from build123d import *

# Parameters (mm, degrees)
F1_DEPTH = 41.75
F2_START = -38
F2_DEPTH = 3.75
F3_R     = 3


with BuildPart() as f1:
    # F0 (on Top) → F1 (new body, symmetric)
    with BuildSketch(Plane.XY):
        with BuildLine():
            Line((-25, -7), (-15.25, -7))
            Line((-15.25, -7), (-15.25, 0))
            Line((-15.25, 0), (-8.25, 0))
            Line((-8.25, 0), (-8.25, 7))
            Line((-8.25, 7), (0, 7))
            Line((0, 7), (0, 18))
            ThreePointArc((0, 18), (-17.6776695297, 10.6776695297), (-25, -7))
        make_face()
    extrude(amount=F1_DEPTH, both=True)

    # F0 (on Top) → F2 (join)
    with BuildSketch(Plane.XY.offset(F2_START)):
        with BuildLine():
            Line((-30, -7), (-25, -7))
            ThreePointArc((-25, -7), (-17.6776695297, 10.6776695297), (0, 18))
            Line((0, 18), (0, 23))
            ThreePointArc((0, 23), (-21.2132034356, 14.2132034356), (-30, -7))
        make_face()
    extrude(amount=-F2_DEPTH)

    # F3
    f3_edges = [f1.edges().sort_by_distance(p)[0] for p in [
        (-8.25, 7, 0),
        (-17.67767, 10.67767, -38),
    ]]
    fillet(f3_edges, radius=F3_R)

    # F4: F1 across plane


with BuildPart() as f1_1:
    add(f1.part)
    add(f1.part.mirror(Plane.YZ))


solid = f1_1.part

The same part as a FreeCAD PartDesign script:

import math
import FreeCAD as App
import Part
import Sketcher
from FreeCAD import Vector


def edges_at(feature, points):
    """Names of the edges that pass closest to the given points."""
    edges = feature.Shape.Edges
    near = lambda p: min(range(len(edges)), key=lambda i: edges[i].distToShape(Part.Vertex(*p))[0])
    return sorted({f"Edge{near(p) + 1}" for p in points})

doc = App.newDocument("Part")
body = doc.addObject("PartDesign::Body", "Body")

# Sketch on XY plane
sketch1 = doc.addObject("Sketcher::SketchObject", "Sketch")
body.addObject(sketch1)
sketch1.AttachmentSupport = (doc.XY_Plane, [""])
sketch1.MapMode = "FlatFace"
sketch1.addGeometry([
    Part.LineSegment(Vector(-25, -7, 0), Vector(-15, -7, 0)),  # 0
    Part.LineSegment(Vector(-15, -7, 0), Vector(-15, 0, 0)),  # 1
    Part.LineSegment(Vector(-15, 0, 0), Vector(-8, 0, 0)),  # 2
    Part.LineSegment(Vector(-8, 0, 0), Vector(-8, 7, 0)),  # 3
    Part.LineSegment(Vector(-8, 7, 0), Vector(0, 7, 0)),  # 4
    Part.LineSegment(Vector(0, 7, 0), Vector(0, 18, 0)),  # 5
    Part.ArcOfCircle(Part.Circle(Vector(0, -7, 0), Vector(0, 0, 1), 25), math.radians(90), math.radians(180)),  # 6
], False)
sketch1.addConstraint([
    Sketcher.Constraint("Coincident", 0, 2, 1, 1),
    Sketcher.Constraint("Coincident", 1, 2, 2, 1),
    Sketcher.Constraint("Coincident", 2, 2, 3, 1),
    Sketcher.Constraint("Coincident", 3, 2, 4, 1),
    Sketcher.Constraint("Coincident", 4, 2, 5, 1),
    Sketcher.Constraint("Coincident", 5, 2, 6, 1),
    Sketcher.Constraint("Coincident", 6, 2, 0, 1),
    Sketcher.Constraint("Horizontal", 0),
    Sketcher.Constraint("Vertical", 1),
    Sketcher.Constraint("Horizontal", 2),
    Sketcher.Constraint("Vertical", 3),
    Sketcher.Constraint("Horizontal", 4),
    Sketcher.Constraint("Vertical", 5),
    Sketcher.Constraint("PointOnObject", 6, 3, -2),
    Sketcher.Constraint("PointOnObject", 1, 2, -1),
    Sketcher.Constraint("PointOnObject", 4, 2, -2),
    Sketcher.Constraint("Horizontal", 6, 3, 0, 2),
    Sketcher.Constraint("Equal", 2, 1),
    Sketcher.Constraint("Equal", 1, 3),
    Sketcher.Constraint("Radius", 6, 25.0),
    Sketcher.Constraint("DistanceX", 2, 1, 2, 2, 7.0),
    Sketcher.Constraint("DistanceX", 0, 1, 0, 2, 9.75),
])
pad1 = doc.addObject("PartDesign::Pad", "Pad")
body.addObject(pad1)
pad1.Profile = sketch1
pad1.Length = 83.5
pad1.Midplane = True

# Sketch on XY plane
sketch2 = doc.addObject("Sketcher::SketchObject", "Sketch001")
body.addObject(sketch2)
sketch2.AttachmentSupport = (doc.XY_Plane, [""])
sketch2.MapMode = "FlatFace"
sketch2.AttachmentOffset = App.Placement(Vector(0, 0, -38), App.Rotation())
sketch2.addGeometry([
    Part.LineSegment(Vector(-30, -7, 0), Vector(-25, -7, 0)),
    Part.ArcOfCircle(Part.Circle(Vector(0, -7, 0), Vector(0, 0, 1), 25), math.radians(90), math.radians(180)),
    Part.LineSegment(Vector(0, 18, 0), Vector(0, 23, 0)),
    Part.ArcOfCircle(Part.Circle(Vector(0, -7, 0), Vector(0, 0, 1), 30), math.radians(90), math.radians(180)),
], False)
sketch2.addConstraint([
    Sketcher.Constraint("Coincident", 0, 2, 1, 2),
    Sketcher.Constraint("Coincident", 1, 1, 2, 1),
    Sketcher.Constraint("Coincident", 2, 2, 3, 1),
    Sketcher.Constraint("Coincident", 3, 2, 0, 1),
    Sketcher.Constraint("Horizontal", 0),
    Sketcher.Constraint("Vertical", 2),
    Sketcher.Constraint("Coincident", 3, 3, 1, 3),
    Sketcher.Constraint("PointOnObject", 1, 3, -2),
    Sketcher.Constraint("PointOnObject", 1, 1, -2),
    Sketcher.Constraint("Horizontal", 3, 3, 0, 2),
    Sketcher.Constraint("Radius", 1, 25.0),
    Sketcher.Constraint("Radius", 3, 30.0),
    Sketcher.Constraint("DistanceY", 1, 3, -1, 1, 7.0),
])
pad2 = doc.addObject("PartDesign::Pad", "Pad001")
body.addObject(pad2)
pad2.Profile = sketch2
pad2.Length = 3.75
pad2.Reversed = True
doc.recompute()

fillet = doc.addObject("PartDesign::Fillet", "Fillet")
body.addObject(fillet)
fillet.Base = (pad2, edges_at(pad2, [(-8.25, 7, 0), (-17.678, 10.678, -38)]))
fillet.Radius = 3
body2 = doc.addObject("PartDesign::Body", "Body001")
doc.recompute()

body2.BaseFeature = body
doc.recompute()

mirroring = doc.addObject("Part::Mirroring", "Mirroring")
mirroring.Source = body
mirroring.Base = Vector(0, 0, 0)
mirroring.Normal = Vector(1, 0, 0)
body3 = doc.addObject("PartDesign::Body", "Body002")
body3.BaseFeature = mirroring
boolean = doc.addObject("PartDesign::Boolean", "Boolean")
body2.addObject(boolean)
boolean.Type = "Fuse"
boolean.addObjects([body3])
doc.recompute()
mirroring.Visibility = False

doc.recompute()
